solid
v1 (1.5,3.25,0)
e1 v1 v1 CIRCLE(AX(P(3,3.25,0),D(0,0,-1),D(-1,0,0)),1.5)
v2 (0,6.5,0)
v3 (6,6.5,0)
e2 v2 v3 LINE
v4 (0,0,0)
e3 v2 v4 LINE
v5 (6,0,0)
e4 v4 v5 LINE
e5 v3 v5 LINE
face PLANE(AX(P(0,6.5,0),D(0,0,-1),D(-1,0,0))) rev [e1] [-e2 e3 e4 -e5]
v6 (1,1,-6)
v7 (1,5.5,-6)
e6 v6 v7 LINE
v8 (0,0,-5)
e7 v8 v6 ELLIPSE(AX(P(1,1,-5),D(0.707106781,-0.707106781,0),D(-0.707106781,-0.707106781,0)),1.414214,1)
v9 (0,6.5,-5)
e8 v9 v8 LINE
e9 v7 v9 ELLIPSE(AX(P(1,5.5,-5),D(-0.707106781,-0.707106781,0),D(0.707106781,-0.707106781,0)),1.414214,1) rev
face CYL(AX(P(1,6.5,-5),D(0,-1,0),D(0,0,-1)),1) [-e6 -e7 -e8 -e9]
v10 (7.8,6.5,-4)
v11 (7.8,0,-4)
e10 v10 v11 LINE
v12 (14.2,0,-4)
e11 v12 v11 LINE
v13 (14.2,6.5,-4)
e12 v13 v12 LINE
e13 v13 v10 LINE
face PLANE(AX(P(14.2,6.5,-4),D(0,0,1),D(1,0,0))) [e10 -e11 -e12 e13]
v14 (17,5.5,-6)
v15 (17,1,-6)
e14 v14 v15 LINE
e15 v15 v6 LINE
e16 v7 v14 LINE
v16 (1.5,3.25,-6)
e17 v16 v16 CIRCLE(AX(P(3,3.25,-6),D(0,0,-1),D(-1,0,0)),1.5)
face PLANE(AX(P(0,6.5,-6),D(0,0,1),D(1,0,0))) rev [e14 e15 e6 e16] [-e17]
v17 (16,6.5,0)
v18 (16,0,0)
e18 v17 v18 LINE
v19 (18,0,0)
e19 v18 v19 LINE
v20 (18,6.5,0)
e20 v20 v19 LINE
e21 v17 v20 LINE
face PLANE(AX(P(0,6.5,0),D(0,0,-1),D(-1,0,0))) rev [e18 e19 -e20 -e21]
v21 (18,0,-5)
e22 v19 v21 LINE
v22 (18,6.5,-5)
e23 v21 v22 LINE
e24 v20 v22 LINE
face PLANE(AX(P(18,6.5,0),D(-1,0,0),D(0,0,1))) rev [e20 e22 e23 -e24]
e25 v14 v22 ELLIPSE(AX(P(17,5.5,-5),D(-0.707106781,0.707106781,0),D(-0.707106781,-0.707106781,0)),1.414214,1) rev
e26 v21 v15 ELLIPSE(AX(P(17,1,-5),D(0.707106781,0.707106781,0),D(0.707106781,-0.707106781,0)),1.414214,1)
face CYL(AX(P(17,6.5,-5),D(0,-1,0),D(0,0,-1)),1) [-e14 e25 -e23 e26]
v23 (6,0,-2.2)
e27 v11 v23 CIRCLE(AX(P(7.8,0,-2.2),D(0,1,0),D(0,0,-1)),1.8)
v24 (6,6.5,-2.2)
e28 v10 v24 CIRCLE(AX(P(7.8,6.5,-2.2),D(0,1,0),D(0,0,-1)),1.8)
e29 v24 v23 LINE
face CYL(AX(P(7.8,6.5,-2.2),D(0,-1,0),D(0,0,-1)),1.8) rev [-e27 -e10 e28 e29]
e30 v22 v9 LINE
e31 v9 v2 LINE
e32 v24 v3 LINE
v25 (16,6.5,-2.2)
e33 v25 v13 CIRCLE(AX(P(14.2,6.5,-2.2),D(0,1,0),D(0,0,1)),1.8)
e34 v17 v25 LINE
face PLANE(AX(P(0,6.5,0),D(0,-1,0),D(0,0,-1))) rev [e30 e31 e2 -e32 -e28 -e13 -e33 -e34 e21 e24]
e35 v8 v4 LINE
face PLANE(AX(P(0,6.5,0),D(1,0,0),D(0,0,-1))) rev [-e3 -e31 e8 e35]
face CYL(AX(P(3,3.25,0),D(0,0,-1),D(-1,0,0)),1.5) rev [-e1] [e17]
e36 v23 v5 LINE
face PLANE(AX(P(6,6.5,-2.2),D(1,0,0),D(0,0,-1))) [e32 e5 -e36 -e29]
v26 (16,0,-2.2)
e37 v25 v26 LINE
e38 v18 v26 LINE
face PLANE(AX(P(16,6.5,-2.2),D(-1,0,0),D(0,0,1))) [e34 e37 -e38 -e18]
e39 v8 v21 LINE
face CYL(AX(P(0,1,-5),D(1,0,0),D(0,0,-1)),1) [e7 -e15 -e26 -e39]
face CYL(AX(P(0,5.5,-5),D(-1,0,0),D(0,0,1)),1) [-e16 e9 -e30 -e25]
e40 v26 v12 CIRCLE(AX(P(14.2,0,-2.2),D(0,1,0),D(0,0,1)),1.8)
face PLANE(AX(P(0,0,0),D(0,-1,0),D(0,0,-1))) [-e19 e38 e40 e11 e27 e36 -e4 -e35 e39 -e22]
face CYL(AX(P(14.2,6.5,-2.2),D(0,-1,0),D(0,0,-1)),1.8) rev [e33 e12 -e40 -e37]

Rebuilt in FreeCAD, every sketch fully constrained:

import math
import FreeCAD as App
import Part
import Sketcher

V = App.Vector


def edges_at(feature, points):
    """Names of the edges that pass closest to the given points."""
    edges = feature.Shape.Edges
    near = lambda p: min(range(len(edges)), key=lambda i: edges[i].distToShape(Part.Vertex(*p))[0])
    return sorted({f"Edge{near(p) + 1}" for p in points})


def add_polygon(sketch, points):
    """Adds a closed chain of lines whose ends are joined by coincident constraints."""
    first, n = sketch.GeometryCount, len(points)
    for a, b in zip(points, points[1:] + points[:1]):
        sketch.addGeometry(Part.LineSegment(App.Vector(*a, 0), App.Vector(*b, 0)), False)
    for i in range(n):
        sketch.addConstraint(Sketcher.Constraint("Coincident", first + i, 2, first + (i + 1) % n, 1))

doc = App.newDocument("Part")
body = doc.addObject("PartDesign::Body", "Body")

# Sketch on XZ plane
sketch1 = body.newObject("Sketcher::SketchObject", "Sketch")
sketch1.AttachmentSupport = (doc.getObject("XZ_Plane"), [""])
sketch1.MapMode = "FlatFace"
add_polygon(sketch1, [(0, -6), (0, 0), (18, 0), (18, -6)])  # lines 0-3
sketch1.addConstraint([
    Sketcher.Constraint("Vertical", 0),
    Sketcher.Constraint("Horizontal", 1),
    Sketcher.Constraint("Vertical", 2),
    Sketcher.Constraint("Horizontal", 3),
    Sketcher.Constraint("Coincident", 0, 2, -1, 1),
    Sketcher.Constraint("DistanceX", 1, 1, 1, 2, 18.0),
    Sketcher.Constraint("DistanceY", 0, 1, 0, 2, 6.0),
])
pad1 = body.newObject("PartDesign::Pad", "Pad")
pad1.Profile = sketch1
pad1.Length = 6.5
pad1.Reversed = True

# Sketch on XY plane
sketch2 = body.newObject("Sketcher::SketchObject", "Sketch001")
sketch2.AttachmentSupport = (doc.getObject("XY_Plane"), [""])
sketch2.MapMode = "FlatFace"
sketch2.AttachmentOffset = App.Placement(V(0, 0, -6), App.Rotation())
sketch2.addGeometry(Part.Circle(V(3, 3.2, 0), V(0, 0, 1), 1.5), False)
sketch2.addConstraint([
    Sketcher.Constraint("Diameter", 0, 3.0),
    Sketcher.Constraint("DistanceX", -1, 1, 0, 3, 3.0),
    Sketcher.Constraint("DistanceY", -1, 1, 0, 3, 3.25),
])
pocket1 = body.newObject("PartDesign::Pocket", "Pocket")
pocket1.Profile = sketch2
pocket1.Type = "ThroughAll"
pocket1.Reversed = True

# Sketch on XZ plane
sketch3 = body.newObject("Sketcher::SketchObject", "Sketch002")
sketch3.AttachmentSupport = (doc.getObject("XZ_Plane"), [""])
sketch3.MapMode = "FlatFace"
sketch3.addGeometry([
    Part.LineSegment(V(14.2, -4, 0), V(7.8, -4, 0)),  # 0
    Part.ArcOfCircle(Part.Circle(V(7.8, -2.2, 0), V(0, 0, 1), 1.8), math.radians(180), math.radians(270)),  # 1
    Part.LineSegment(V(6, -2.2, 0), V(6, 0, 0)),  # 2
    Part.LineSegment(V(6, 0, 0), V(16, 0, 0)),  # 3
    Part.LineSegment(V(16, 0, 0), V(16, -2.2, 0)),  # 4
    Part.ArcOfCircle(Part.Circle(V(14.2, -2.2, 0), V(0, 0, 1), 1.8), math.radians(-90), math.radians(0)),  # 5
], False)
sketch3.addConstraint([
    Sketcher.Constraint("Tangent", 0, 2, 1, 2),
    Sketcher.Constraint("Tangent", 1, 1, 2, 1),
    Sketcher.Constraint("Coincident", 2, 2, 3, 1),
    Sketcher.Constraint("Coincident", 3, 2, 4, 1),
    Sketcher.Constraint("Tangent", 4, 2, 5, 2),
    Sketcher.Constraint("Tangent", 5, 1, 0, 1),
    Sketcher.Constraint("Horizontal", 0),
    Sketcher.Constraint("Vertical", 2),
    Sketcher.Constraint("Horizontal", 3),
    Sketcher.Constraint("Vertical", 4),
    Sketcher.Constraint("Equal", 1, 5),
    Sketcher.Constraint("PointOnObject", 2, 2, -1),
    Sketcher.Constraint("Radius", 1, 1.8),
    Sketcher.Constraint("DistanceX", 3, 1, 3, 2, 10.0),
    Sketcher.Constraint("DistanceY", 2, 1, 2, 2, 2.2),
    Sketcher.Constraint("DistanceX", -1, 1, 1, 1, 6.0),
])
pocket2 = body.newObject("PartDesign::Pocket", "Pocket001")
pocket2.Profile = sketch3
pocket2.Type = "ThroughAll"
doc.recompute()

fillet = body.newObject("PartDesign::Fillet", "Fillet")
fillet.Base = (pocket2, edges_at(pocket2, [
    (9, 6.5, -6),
    (9, 0, -6),
    (0, 3.25, -6),
    (18, 3.25, -6),
]))
fillet.Radius = 1

doc.recompute()
